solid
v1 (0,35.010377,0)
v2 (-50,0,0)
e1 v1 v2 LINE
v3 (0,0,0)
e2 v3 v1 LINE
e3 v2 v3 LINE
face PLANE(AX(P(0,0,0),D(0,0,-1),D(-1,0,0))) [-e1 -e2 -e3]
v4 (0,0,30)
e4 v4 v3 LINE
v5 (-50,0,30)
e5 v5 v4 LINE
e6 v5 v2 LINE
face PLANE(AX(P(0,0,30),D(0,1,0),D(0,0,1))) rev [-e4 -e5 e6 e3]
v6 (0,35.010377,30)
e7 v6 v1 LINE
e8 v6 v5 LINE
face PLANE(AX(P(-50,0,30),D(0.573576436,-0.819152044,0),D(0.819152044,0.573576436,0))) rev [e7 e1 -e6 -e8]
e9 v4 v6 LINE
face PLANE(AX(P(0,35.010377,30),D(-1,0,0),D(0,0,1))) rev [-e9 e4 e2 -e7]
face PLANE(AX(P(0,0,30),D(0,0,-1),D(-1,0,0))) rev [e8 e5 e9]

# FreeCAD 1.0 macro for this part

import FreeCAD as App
import Part
import Sketcher
Q = App.Units.Quantity

doc = App.newDocument("Part")
body = doc.addObject("PartDesign::Body", "Body")

# Sketch on XY plane
sketch1 = body.newObject("Sketcher::SketchObject", "Sketch")
sketch1.AttachmentSupport = (doc.getObject("XY_Plane"), [""])
sketch1.MapMode = "FlatFace"
sketch1.addGeometry(Part.LineSegment(App.Vector(-50, 0, 0), App.Vector(0, 0, 0)), False)
sketch1.addGeometry(Part.LineSegment(App.Vector(0, 0, 0), App.Vector(0, 35.010377, 0)), False)
sketch1.addGeometry(Part.LineSegment(App.Vector(0, 35.010377, 0), App.Vector(-50, 0, 0)), False)
sketch1.addConstraint(Sketcher.Constraint("Coincident", 0, 2, 1, 1))
sketch1.addConstraint(Sketcher.Constraint("Coincident", 1, 2, 2, 1))
sketch1.addConstraint(Sketcher.Constraint("Coincident", 2, 2, 0, 1))
sketch1.addConstraint(Sketcher.Constraint("Horizontal", 0))
sketch1.addConstraint(Sketcher.Constraint("Vertical", 1))
sketch1.addConstraint(Sketcher.Constraint("Coincident", 0, 2, -1, 1))
sketch1.addConstraint(Sketcher.Constraint("DistanceX", 0, 1, 0, 2, Q("50 mm")))
sketch1.addConstraint(Sketcher.Constraint("Angle", 2, Q("-145 deg")))
pad1 = body.newObject("PartDesign::Pad", "Pad")
pad1.Profile = sketch1
pad1.Length = 30

doc.recompute()
